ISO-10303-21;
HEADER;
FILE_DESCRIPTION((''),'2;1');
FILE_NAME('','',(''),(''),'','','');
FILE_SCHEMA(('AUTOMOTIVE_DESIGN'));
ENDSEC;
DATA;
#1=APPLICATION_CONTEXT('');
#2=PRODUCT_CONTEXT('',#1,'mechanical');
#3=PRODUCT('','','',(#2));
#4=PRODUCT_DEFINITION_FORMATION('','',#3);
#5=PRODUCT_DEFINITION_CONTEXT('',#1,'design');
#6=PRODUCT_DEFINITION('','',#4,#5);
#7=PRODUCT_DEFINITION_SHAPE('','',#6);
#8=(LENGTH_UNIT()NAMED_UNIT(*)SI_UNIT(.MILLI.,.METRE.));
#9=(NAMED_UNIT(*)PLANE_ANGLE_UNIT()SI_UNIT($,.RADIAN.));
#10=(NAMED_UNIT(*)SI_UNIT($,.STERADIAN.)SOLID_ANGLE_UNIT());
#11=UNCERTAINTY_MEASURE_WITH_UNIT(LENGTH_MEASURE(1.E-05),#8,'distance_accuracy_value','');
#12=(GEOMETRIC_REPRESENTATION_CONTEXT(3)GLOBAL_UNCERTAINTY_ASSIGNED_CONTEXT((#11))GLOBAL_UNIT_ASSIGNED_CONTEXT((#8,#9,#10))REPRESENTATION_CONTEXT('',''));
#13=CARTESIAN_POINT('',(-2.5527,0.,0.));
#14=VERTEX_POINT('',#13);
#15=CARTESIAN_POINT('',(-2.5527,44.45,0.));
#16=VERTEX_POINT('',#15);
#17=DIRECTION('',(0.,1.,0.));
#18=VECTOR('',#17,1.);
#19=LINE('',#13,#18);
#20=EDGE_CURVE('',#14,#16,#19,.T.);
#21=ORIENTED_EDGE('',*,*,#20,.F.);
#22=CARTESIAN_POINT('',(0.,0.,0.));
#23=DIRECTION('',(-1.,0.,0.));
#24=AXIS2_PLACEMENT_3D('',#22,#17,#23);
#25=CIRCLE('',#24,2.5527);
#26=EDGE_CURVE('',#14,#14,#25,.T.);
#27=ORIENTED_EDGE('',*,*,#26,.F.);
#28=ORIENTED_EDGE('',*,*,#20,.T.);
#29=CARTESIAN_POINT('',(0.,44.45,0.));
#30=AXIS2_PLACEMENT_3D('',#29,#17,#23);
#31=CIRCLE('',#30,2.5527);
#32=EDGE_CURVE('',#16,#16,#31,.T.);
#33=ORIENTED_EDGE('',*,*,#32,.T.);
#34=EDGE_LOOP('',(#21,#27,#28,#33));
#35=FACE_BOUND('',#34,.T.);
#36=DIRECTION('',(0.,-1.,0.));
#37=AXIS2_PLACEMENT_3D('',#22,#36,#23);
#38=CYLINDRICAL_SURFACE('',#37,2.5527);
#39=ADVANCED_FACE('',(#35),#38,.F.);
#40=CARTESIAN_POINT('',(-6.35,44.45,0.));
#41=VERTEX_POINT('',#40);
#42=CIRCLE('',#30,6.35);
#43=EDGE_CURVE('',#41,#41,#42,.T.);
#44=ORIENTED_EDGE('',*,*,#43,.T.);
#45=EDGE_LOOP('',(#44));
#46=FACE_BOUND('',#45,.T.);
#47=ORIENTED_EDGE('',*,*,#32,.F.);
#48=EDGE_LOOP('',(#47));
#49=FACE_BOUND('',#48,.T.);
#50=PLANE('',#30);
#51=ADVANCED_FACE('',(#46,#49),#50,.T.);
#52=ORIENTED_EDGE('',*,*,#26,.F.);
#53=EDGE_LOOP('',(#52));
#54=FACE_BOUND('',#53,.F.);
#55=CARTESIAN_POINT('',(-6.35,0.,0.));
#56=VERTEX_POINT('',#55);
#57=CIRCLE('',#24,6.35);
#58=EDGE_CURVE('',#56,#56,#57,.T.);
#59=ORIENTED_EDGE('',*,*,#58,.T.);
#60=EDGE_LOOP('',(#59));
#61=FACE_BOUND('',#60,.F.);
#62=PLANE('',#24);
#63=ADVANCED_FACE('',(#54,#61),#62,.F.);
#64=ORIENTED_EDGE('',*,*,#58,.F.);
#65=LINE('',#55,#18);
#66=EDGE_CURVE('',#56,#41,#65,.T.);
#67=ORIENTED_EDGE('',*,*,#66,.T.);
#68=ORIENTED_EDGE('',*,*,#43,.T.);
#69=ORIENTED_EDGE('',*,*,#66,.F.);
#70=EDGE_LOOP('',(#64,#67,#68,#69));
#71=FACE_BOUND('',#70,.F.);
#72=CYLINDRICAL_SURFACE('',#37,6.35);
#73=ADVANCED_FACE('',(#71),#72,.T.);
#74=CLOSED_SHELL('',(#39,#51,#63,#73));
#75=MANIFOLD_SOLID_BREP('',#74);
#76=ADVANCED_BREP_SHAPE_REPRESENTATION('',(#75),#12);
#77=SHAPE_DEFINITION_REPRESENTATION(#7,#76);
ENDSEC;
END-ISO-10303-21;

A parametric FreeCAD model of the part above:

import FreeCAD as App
import Part
import Sketcher

V = App.Vector
Q = App.Units.Quantity

doc = App.newDocument("Part")
params = doc.addObject("Spreadsheet::Sheet", "Params")
for row, (alias, value) in enumerate([
    ("sketch1_diameter", "0.5 in"),
    ("sketch1_diameter2", "0.201 in"),
    ("pad1_length", "1.75 in"),
], start=1):
    params.set(f"A{row}", alias)
    params.set(f"B{row}", "=" + value)
    params.setAlias(f"B{row}", alias)

body = doc.addObject("PartDesign::Body", "Body")

# Sketch on XZ plane
sketch1 = doc.addObject("Sketcher::SketchObject", "Sketch")
body.addObject(sketch1)
sketch1.AttachmentSupport = (doc.XZ_Plane, [""])
sketch1.MapMode = "FlatFace"
sketch1.addGeometry([
    Part.Circle(V(0, 0, 0), V(0, 0, 1), 6.3),
    Part.Circle(V(0, 0, 0), V(0, 0, 1), 2.6),
], False)
sketch1.addConstraint([
    Sketcher.Constraint("Coincident", 0, 3, -1, 1),
    Sketcher.Constraint("Coincident", 1, 3, -1, 1),
    Sketcher.Constraint("Diameter", 0, Q("0.5 in")),
    Sketcher.Constraint("Diameter", 1, Q("0.201 in")),
])
sketch1.setExpression("Constraints[2]", "Params.sketch1_diameter")
sketch1.setExpression("Constraints[3]", "Params.sketch1_diameter2")
pad1 = doc.addObject("PartDesign::Pad", "Pad")
body.addObject(pad1)
pad1.Profile = sketch1
pad1.setExpression("Length", "Params.pad1_length")
pad1.Reversed = True

doc.recompute()
